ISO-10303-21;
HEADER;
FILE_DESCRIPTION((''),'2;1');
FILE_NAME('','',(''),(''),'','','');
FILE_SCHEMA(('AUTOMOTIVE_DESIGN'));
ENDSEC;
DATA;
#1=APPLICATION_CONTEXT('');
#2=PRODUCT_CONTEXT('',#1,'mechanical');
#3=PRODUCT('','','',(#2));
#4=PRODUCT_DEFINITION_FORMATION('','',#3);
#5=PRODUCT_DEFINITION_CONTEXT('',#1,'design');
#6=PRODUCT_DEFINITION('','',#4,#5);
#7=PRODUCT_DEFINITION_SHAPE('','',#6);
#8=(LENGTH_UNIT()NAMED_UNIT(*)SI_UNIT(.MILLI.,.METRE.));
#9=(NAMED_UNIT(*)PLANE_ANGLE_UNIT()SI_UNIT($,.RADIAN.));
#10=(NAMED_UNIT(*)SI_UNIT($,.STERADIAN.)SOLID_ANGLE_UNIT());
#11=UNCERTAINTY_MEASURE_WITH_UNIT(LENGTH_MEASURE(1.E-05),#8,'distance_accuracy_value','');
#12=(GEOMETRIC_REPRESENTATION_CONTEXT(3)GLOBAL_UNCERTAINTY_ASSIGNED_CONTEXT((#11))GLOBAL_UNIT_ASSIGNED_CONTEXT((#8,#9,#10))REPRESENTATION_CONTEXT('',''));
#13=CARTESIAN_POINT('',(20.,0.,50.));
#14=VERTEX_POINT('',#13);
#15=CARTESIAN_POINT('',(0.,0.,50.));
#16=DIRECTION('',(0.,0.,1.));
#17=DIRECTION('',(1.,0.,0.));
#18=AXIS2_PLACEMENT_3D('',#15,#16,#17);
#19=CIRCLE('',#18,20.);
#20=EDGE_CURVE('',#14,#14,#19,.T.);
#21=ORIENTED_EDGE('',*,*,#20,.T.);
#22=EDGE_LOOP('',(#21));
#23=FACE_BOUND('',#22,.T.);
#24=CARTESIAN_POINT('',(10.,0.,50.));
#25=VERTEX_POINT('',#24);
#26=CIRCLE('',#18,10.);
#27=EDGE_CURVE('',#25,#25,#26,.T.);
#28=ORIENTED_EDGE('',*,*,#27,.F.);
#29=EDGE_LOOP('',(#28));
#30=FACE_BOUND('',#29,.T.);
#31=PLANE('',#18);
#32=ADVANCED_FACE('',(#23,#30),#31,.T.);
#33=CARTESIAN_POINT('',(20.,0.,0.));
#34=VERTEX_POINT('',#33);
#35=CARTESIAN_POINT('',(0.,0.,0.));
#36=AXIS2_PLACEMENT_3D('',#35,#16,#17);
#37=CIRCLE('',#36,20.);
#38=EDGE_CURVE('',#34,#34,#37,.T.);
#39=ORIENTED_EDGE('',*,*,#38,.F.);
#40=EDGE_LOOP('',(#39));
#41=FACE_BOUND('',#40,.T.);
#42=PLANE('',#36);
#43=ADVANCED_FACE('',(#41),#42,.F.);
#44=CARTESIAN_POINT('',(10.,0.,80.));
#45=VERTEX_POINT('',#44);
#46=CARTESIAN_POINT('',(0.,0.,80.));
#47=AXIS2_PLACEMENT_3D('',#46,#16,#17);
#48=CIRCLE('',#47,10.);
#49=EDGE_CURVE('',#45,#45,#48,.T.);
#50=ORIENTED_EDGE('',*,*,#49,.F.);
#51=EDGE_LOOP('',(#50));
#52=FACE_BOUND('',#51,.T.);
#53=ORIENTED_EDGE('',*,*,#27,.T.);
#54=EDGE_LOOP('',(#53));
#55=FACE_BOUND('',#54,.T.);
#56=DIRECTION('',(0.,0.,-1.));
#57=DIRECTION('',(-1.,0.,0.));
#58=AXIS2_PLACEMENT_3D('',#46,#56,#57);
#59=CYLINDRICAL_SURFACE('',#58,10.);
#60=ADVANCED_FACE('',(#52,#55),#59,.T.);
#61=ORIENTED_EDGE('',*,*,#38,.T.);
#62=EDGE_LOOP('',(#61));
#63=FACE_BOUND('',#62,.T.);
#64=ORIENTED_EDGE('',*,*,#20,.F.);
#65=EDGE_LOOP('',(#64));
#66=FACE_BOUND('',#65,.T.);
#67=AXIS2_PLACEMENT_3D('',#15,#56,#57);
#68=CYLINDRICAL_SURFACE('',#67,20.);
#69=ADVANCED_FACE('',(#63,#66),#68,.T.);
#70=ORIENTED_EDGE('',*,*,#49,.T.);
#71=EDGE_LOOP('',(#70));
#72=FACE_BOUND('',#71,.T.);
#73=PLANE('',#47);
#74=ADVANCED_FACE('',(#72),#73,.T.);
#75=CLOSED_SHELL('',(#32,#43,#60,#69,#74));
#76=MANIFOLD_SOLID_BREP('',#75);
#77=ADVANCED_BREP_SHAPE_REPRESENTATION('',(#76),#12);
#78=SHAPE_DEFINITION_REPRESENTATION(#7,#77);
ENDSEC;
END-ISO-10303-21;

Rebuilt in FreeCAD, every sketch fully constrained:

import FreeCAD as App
import Part
import Sketcher

V = App.Vector
Q = App.Units.Quantity

doc = App.newDocument("Part")
body = doc.addObject("PartDesign::Body", "Body")

sketch1 = body.newObject("Sketcher::SketchObject", "Sketch")
sketch1.AttachmentSupport = (doc.getObject("XY_Plane"), [""])
sketch1.MapMode = "FlatFace"
sketch1.addGeometry(Part.Circle(V(0, 0, 0), V(0, 0, 1), 20), False)
sketch1.addConstraint(Sketcher.Constraint("Coincident", 0, 3, -1, 1))
sketch1.addConstraint(Sketcher.Constraint("Diameter", 0, Q("40 mm")))
pad1 = body.newObject("PartDesign::Pad", "Pad")
pad1.Profile = sketch1
pad1.Length = 50

sketch2 = body.newObject("Sketcher::SketchObject", "Sketch001")
sketch2.AttachmentSupport = (doc.getObject("XY_Plane"), [""])
sketch2.MapMode = "FlatFace"
sketch2.AttachmentOffset = App.Placement(V(0, 0, 50), App.Rotation())
sketch2.addGeometry(Part.Circle(V(0, 0, 0), V(0, 0, 1), 10), False)
sketch2.addConstraint(Sketcher.Constraint("Coincident", 0, 3, -1, 1))
sketch2.addConstraint(Sketcher.Constraint("Diameter", 0, Q("20 mm")))
pad2 = body.newObject("PartDesign::Pad", "Pad001")
pad2.Profile = sketch2
pad2.Length = 30

doc.recompute()
